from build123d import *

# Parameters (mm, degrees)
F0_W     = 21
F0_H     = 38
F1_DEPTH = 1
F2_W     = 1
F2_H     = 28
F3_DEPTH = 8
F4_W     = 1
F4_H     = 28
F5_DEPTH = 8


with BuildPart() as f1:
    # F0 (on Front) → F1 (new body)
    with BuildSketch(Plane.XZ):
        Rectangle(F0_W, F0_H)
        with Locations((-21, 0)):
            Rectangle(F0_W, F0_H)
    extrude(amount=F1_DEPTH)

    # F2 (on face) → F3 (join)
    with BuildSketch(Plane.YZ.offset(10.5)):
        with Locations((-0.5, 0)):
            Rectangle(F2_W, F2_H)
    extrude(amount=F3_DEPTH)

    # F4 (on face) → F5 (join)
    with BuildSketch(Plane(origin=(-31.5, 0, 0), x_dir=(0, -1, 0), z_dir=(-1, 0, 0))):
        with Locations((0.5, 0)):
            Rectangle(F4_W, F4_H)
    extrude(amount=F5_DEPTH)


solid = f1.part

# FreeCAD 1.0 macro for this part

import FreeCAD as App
import Part
import Sketcher

V = App.Vector
Q = App.Units.Quantity


def add_polygon(sketch, points):
    """Adds a closed chain of lines whose ends are joined by coincident constraints."""
    first, n = sketch.GeometryCount, len(points)
    for a, b in zip(points, points[1:] + points[:1]):
        sketch.addGeometry(Part.LineSegment(App.Vector(*a, 0), App.Vector(*b, 0)), False)
    for i in range(n):
        sketch.addConstraint(Sketcher.Constraint("Coincident", first + i, 2, first + (i + 1) % n, 1))

doc = App.newDocument("Part")
params = doc.addObject("Spreadsheet::Sheet", "Params")
for row, (alias, value) in enumerate([
    ("sketch1_width", "42 mm"),
    ("sketch1_height", "38 mm"),
    ("pad1_length", "1 mm"),
    ("sketch2_width", "1 mm"),
    ("sketch2_height", "28 mm"),
    ("pad2_length", "8 mm"),
    ("sketch3_width", "1 mm"),
    ("sketch3_height", "28 mm"),
    ("pad3_length", "8 mm"),
], start=1):
    params.set(f"A{row}", alias)
    params.set(f"B{row}", "=" + value)
    params.setAlias(f"B{row}", alias)

body = doc.addObject("PartDesign::Body", "Body")

# Sketch on XZ plane
sketch1 = body.newObject("Sketcher::SketchObject", "Sketch")
sketch1.AttachmentSupport = (doc.getObject("XZ_Plane"), [""])
sketch1.MapMode = "FlatFace"
add_polygon(sketch1, [(10, -19), (10, 19), (-32, 19), (-32, -19)])  # lines 0-3
sketch1.addConstraint([
    Sketcher.Constraint("Vertical", 0),
    Sketcher.Constraint("Horizontal", 1),
    Sketcher.Constraint("Vertical", 2),
    Sketcher.Constraint("Horizontal", 3),
    Sketcher.Constraint("DistanceX", 1, 2, 1, 1, Q("42 mm")),
    Sketcher.Constraint("DistanceY", 0, 1, 0, 2, Q("38 mm")),
    Sketcher.Constraint("DistanceY", -1, 1, 0, 2, Q("19 mm")),
    Sketcher.Constraint("DistanceX", -1, 1, 0, 2, Q("10.5 mm")),
])
sketch1.setExpression("Constraints[8]", "Params.sketch1_width")
sketch1.setExpression("Constraints[9]", "Params.sketch1_height")
pad1 = body.newObject("PartDesign::Pad", "Pad")
pad1.Profile = sketch1
pad1.setExpression("Length", "Params.pad1_length")

# Sketch on YZ plane
sketch2 = body.newObject("Sketcher::SketchObject", "Sketch001")
sketch2.AttachmentSupport = (doc.getObject("YZ_Plane"), [""])
sketch2.MapMode = "FlatFace"
sketch2.AttachmentOffset = App.Placement(V(0, 0, 10.5), App.Rotation())
add_polygon(sketch2, [(-1, 14), (-1, -14), (0, -14), (0, 14)])  # lines 0-3
sketch2.addConstraint([
    Sketcher.Constraint("Vertical", 0),
    Sketcher.Constraint("Horizontal", 1),
    Sketcher.Constraint("Vertical", 2),
    Sketcher.Constraint("Horizontal", 3),
    Sketcher.Constraint("Symmetric", 1, 2, 2, 2, -1, 1),
    Sketcher.Constraint("DistanceX", 1, 1, 1, 2, Q("1 mm")),
    Sketcher.Constraint("DistanceY", 0, 2, 0, 1, Q("28 mm")),
])
sketch2.setExpression("Constraints[9]", "Params.sketch2_width")
sketch2.setExpression("Constraints[10]", "Params.sketch2_height")
pad2 = body.newObject("PartDesign::Pad", "Pad001")
pad2.Profile = sketch2
pad2.setExpression("Length", "Params.pad2_length")

# Sketch on YZ plane
sketch3 = body.newObject("Sketcher::SketchObject", "Sketch002")
sketch3.AttachmentSupport = (doc.getObject("YZ_Plane"), [""])
sketch3.MapMode = "FlatFace"
sketch3.AttachmentOffset = App.Placement(V(0, 0, -31.5), App.Rotation())
add_polygon(sketch3, [(0, 14), (0, -14), (-1, -14), (-1, 14)])  # lines 0-3
sketch3.addConstraint([
    Sketcher.Constraint("Vertical", 0),
    Sketcher.Constraint("Horizontal", 1),
    Sketcher.Constraint("Vertical", 2),
    Sketcher.Constraint("Horizontal", 3),
    Sketcher.Constraint("Symmetric", 0, 2, 3, 2, -1, 1),
    Sketcher.Constraint("DistanceX", 1, 2, 1, 1, Q("1 mm")),
    Sketcher.Constraint("DistanceY", 0, 2, 0, 1, Q("28 mm")),
])
sketch3.setExpression("Constraints[9]", "Params.sketch3_width")
sketch3.setExpression("Constraints[10]", "Params.sketch3_height")
pad3 = body.newObject("PartDesign::Pad", "Pad002")
pad3.Profile = sketch3
pad3.setExpression("Length", "Params.pad3_length")
pad3.Reversed = True

doc.recompute()
